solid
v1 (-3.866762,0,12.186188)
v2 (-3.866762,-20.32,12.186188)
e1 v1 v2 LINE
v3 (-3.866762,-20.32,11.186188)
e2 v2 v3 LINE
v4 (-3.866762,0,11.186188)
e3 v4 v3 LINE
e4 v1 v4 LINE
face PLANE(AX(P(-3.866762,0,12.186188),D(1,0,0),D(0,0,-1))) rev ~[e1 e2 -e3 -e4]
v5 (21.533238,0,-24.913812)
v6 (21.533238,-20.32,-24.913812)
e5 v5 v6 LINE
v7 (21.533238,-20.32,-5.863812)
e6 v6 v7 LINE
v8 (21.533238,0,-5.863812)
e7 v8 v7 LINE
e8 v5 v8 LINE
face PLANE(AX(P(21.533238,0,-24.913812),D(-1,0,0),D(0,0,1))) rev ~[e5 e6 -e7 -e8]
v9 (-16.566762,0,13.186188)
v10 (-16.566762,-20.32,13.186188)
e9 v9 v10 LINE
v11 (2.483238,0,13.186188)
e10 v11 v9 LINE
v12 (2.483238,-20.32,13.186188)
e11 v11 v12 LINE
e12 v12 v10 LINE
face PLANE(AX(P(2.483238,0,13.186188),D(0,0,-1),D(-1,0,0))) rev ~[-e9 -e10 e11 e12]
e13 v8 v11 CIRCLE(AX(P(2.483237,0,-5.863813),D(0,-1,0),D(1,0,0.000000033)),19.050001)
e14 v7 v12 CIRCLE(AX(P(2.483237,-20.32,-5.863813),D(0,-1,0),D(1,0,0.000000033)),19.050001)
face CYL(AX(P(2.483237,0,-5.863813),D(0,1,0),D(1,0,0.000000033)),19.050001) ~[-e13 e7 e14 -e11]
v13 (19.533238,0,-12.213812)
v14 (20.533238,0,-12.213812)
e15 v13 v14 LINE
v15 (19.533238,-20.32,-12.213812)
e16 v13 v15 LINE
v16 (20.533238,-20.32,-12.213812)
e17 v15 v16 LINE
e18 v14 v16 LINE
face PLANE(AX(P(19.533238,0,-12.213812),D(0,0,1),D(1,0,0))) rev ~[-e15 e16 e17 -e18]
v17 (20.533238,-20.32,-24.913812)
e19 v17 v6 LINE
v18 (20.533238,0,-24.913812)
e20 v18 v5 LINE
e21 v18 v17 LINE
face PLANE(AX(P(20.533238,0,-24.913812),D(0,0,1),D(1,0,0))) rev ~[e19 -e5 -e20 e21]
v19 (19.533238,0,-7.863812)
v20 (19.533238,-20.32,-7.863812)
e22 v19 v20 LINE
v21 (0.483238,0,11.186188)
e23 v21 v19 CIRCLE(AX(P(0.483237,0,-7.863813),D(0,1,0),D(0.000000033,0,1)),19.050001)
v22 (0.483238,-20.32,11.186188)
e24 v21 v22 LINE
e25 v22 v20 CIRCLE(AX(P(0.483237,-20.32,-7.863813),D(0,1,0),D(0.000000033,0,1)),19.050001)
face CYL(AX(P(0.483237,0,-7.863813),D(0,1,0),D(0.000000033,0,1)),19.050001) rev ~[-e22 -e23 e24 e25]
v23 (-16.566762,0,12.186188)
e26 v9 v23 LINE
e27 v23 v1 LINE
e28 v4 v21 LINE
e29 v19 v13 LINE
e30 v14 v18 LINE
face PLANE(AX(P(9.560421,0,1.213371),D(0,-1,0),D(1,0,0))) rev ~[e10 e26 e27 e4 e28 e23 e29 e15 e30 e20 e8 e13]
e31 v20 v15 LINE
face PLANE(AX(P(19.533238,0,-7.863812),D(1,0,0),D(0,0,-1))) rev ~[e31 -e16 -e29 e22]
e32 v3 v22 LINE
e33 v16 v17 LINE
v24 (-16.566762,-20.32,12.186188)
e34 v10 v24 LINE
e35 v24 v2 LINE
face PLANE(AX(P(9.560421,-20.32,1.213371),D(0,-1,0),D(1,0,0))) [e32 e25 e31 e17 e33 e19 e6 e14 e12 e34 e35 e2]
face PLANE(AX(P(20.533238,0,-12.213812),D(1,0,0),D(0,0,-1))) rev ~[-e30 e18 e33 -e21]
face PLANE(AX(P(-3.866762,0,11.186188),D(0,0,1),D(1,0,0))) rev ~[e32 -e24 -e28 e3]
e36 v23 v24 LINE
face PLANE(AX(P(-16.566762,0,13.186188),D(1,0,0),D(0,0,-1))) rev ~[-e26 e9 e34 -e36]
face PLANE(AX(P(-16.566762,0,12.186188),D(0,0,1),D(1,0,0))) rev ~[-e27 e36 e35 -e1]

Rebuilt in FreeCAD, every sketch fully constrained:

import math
import FreeCAD as App
import Part
import Sketcher
from FreeCAD import Vector
Q = App.Units.Quantity

doc = App.newDocument("Part")
body = doc.addObject("PartDesign::Body", "Body")

# Sketch on XZ plane
sketch1 = body.newObject("Sketcher::SketchObject", "Sketch")
sketch1.AttachmentSupport = (doc.getObject("XZ_Plane"), [""])
sketch1.MapMode = "FlatFace"
sketch1.addGeometry([
    Part.LineSegment(Vector(2.5, 13.2, 0), Vector(-16.6, 13.2, 0)),  # 0
    Part.LineSegment(Vector(-16.6, 13.2, 0), Vector(-16.6, 12.2, 0)),  # 1
    Part.LineSegment(Vector(-16.6, 12.2, 0), Vector(-3.9, 12.2, 0)),  # 2
    Part.LineSegment(Vector(-3.9, 12.2, 0), Vector(-3.9, 11.2, 0)),  # 3
    Part.LineSegment(Vector(-3.9, 11.2, 0), Vector(0.5, 11.2, 0)),  # 4
    Part.ArcOfCircle(Part.Circle(Vector(0.5, -7.9, 0), Vector(0, 0, 1), 19.1), math.radians(0), math.radians(90)),  # 5
    Part.LineSegment(Vector(19.5, -7.9, 0), Vector(19.5, -12.2, 0)),  # 6
    Part.LineSegment(Vector(19.5, -12.2, 0), Vector(20.5, -12.2, 0)),  # 7
    Part.LineSegment(Vector(20.5, -12.2, 0), Vector(20.5, -24.9, 0)),  # 8
    Part.LineSegment(Vector(20.5, -24.9, 0), Vector(21.5, -24.9, 0)),  # 9
    Part.LineSegment(Vector(21.5, -24.9, 0), Vector(21.5, -5.9, 0)),  # 10
    Part.ArcOfCircle(Part.Circle(Vector(2.5, -5.9, 0), Vector(0, 0, 1), 19.1), math.radians(0), math.radians(90)),  # 11
], False)
sketch1.addConstraint([
    Sketcher.Constraint("Coincident", 0, 2, 1, 1),
    Sketcher.Constraint("Coincident", 1, 2, 2, 1),
    Sketcher.Constraint("Coincident", 2, 2, 3, 1),
    Sketcher.Constraint("Coincident", 3, 2, 4, 1),
    Sketcher.Constraint("Tangent", 4, 2, 5, 2),
    Sketcher.Constraint("Tangent", 5, 1, 6, 1),
    Sketcher.Constraint("Coincident", 6, 2, 7, 1),
    Sketcher.Constraint("Coincident", 7, 2, 8, 1),
    Sketcher.Constraint("Coincident", 8, 2, 9, 1),
    Sketcher.Constraint("Coincident", 9, 2, 10, 1),
    Sketcher.Constraint("Tangent", 10, 2, 11, 1),
    Sketcher.Constraint("Tangent", 11, 2, 0, 1),
    Sketcher.Constraint("Horizontal", 0),
    Sketcher.Constraint("Vertical", 1),
    Sketcher.Constraint("Horizontal", 2),
    Sketcher.Constraint("Vertical", 3),
    Sketcher.Constraint("Horizontal", 4),
    Sketcher.Constraint("Vertical", 6),
    Sketcher.Constraint("Horizontal", 7),
    Sketcher.Constraint("Vertical", 8),
    Sketcher.Constraint("Horizontal", 9),
    Sketcher.Constraint("Vertical", 10),
    Sketcher.Constraint("Equal", 5, 11),
    Sketcher.Constraint("Equal", 7, 9),
    Sketcher.Constraint("Equal", 9, 1),
    Sketcher.Constraint("Equal", 1, 3),
    Sketcher.Constraint("Equal", 4, 6),
    Sketcher.Constraint("Equal", 2, 8),
    Sketcher.Constraint("Radius", 5, Q("0.75 in")),
    Sketcher.Constraint("DistanceX", 2, 1, 2, 2, Q("0.5 in")),
    Sketcher.Constraint("DistanceX", 0, 2, 0, 1, Q("0.75 in")),
    Sketcher.Constraint("DistanceX", 4, 1, 4, 2, 4.35),
    Sketcher.Constraint("DistanceX", 2, 2, -1, 1, 3.866762),
    Sketcher.Constraint("DistanceY", 8, 2, -1, 1, 24.913812),
])
pad1 = body.newObject("PartDesign::Pad", "Pad")
pad1.Profile = sketch1
pad1.Length = Q("0.8 in")

doc.recompute()
